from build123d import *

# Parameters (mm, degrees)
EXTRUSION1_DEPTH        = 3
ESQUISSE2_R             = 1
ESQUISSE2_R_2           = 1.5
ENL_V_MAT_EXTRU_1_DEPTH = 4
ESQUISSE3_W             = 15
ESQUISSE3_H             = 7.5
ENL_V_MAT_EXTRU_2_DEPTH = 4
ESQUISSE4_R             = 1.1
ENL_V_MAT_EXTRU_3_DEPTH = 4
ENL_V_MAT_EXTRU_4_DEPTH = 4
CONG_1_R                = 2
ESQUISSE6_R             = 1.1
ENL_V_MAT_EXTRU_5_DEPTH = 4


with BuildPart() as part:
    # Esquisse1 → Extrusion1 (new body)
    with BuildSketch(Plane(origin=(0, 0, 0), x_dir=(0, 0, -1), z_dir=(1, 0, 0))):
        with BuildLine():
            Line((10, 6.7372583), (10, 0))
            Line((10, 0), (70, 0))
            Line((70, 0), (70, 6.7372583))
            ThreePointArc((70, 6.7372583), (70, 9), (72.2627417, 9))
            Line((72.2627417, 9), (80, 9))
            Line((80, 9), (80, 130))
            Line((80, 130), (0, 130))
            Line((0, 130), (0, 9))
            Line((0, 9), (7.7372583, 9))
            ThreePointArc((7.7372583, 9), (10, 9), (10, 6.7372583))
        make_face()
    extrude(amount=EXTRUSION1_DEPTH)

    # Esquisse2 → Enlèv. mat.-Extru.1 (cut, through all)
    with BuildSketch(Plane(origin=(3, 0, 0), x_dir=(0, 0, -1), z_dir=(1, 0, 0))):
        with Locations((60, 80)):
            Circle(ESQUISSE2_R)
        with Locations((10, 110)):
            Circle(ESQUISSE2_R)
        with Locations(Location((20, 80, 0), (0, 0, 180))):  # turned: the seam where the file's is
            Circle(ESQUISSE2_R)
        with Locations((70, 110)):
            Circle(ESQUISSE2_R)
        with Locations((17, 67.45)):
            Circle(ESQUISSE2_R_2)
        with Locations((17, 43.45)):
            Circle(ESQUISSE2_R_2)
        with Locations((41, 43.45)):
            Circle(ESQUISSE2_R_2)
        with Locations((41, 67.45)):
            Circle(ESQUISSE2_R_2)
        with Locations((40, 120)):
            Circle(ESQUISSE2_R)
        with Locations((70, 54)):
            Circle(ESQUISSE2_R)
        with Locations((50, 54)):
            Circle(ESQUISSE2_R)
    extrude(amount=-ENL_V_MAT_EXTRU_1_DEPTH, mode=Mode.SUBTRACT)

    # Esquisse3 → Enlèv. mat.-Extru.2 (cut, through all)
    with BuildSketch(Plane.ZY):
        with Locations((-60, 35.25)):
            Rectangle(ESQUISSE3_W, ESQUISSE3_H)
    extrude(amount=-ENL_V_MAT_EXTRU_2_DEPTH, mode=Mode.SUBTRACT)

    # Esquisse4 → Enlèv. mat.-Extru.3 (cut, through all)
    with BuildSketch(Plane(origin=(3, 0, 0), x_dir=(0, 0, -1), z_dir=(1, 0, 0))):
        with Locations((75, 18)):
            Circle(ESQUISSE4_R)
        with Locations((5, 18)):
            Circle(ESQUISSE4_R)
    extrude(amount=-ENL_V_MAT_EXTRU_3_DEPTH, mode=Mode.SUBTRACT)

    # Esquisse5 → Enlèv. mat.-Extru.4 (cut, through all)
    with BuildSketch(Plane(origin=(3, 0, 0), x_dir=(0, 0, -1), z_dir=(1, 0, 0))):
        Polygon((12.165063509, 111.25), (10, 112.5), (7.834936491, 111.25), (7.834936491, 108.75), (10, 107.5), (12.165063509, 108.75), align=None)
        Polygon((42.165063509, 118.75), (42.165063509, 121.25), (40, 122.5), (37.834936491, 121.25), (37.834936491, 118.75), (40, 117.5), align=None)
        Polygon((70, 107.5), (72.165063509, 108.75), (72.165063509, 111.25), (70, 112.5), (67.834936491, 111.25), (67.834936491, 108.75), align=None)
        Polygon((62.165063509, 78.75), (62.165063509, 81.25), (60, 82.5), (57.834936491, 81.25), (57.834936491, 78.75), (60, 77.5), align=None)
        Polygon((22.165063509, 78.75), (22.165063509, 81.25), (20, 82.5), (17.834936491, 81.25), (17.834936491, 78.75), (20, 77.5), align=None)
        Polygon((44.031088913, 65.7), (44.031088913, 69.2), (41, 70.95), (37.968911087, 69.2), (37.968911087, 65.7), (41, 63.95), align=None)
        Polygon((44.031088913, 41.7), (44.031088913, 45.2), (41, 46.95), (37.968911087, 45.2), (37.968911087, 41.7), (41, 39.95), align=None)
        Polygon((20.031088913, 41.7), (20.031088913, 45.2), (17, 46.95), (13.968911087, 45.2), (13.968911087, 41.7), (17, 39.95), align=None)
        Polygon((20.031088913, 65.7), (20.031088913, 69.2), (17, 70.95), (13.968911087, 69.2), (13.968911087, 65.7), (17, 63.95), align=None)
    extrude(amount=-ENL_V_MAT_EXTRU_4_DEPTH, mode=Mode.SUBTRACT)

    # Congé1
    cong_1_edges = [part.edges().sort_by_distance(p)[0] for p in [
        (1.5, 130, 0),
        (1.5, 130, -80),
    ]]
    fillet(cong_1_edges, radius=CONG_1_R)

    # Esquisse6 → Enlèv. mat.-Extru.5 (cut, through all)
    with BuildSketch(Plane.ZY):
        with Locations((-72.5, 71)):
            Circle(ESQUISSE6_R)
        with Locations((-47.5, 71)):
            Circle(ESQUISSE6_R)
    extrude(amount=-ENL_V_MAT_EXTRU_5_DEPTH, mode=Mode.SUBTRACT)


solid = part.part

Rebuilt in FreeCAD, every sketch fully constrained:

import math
import FreeCAD as App
import Part
import Sketcher
from FreeCAD import Vector
Q = App.Units.Quantity


def edges_at(feature, points):
    """Names of the edges that pass closest to the given points."""
    edges = feature.Shape.Edges
    near = lambda p: min(range(len(edges)), key=lambda i: edges[i].distToShape(Part.Vertex(*p))[0])
    return sorted({f"Edge{near(p) + 1}" for p in points})


def add_polygon(sketch, points):
    """Adds a closed chain of lines whose ends are joined by coincident constraints."""
    first, n = sketch.GeometryCount, len(points)
    for a, b in zip(points, points[1:] + points[:1]):
        sketch.addGeometry(Part.LineSegment(App.Vector(*a, 0), App.Vector(*b, 0)), False)
    for i in range(n):
        sketch.addConstraint(Sketcher.Constraint("Coincident", first + i, 2, first + (i + 1) % n, 1))

doc = App.newDocument("Part")
body = doc.addObject("PartDesign::Body", "Body")

sketch1 = body.newObject("Sketcher::SketchObject", "Sketch")
sketch1.AttachmentSupport = (doc.getObject("YZ_Plane"), [""])
sketch1.MapMode = "FlatFace"
sketch1.addGeometry([
    Part.LineSegment(Vector(6.7, -10, 0), Vector(0, -10, 0)),
    Part.LineSegment(Vector(0, -10, 0), Vector(0, -70, 0)),
    Part.LineSegment(Vector(0, -70, 0), Vector(6.7, -70, 0)),
    Part.ArcOfCircle(Part.Circle(Vector(7.9, -71.1, 0), Vector(0, 0, 1), 1.6), math.radians(-45), math.radians(135)),
    Part.LineSegment(Vector(9, -72.3, 0), Vector(9, -80, 0)),
    Part.LineSegment(Vector(9, -80, 0), Vector(130, -80, 0)),
    Part.LineSegment(Vector(130, -80, 0), Vector(130, 0, 0)),
    Part.LineSegment(Vector(130, 0, 0), Vector(9, 0, 0)),
    Part.LineSegment(Vector(9, 0, 0), Vector(9, -7.7, 0)),
    Part.ArcOfCircle(Part.Circle(Vector(7.9, -8.9, 0), Vector(0, 0, 1), 1.6), math.radians(-135), math.radians(45)),
], False)
sketch1.addConstraint([
    Sketcher.Constraint("Coincident", 0, 2, 1, 1),
    Sketcher.Constraint("Coincident", 1, 2, 2, 1),
    Sketcher.Constraint("Coincident", 2, 2, 3, 2),
    Sketcher.Constraint("Coincident", 3, 1, 4, 1),
    Sketcher.Constraint("Coincident", 4, 2, 5, 1),
    Sketcher.Constraint("Coincident", 5, 2, 6, 1),
    Sketcher.Constraint("Coincident", 6, 2, 7, 1),
    Sketcher.Constraint("Coincident", 7, 2, 8, 1),
    Sketcher.Constraint("Coincident", 8, 2, 9, 2),
    Sketcher.Constraint("Coincident", 9, 1, 0, 1),
    Sketcher.Constraint("Horizontal", 0),
    Sketcher.Constraint("Vertical", 1),
    Sketcher.Constraint("Horizontal", 2),
    Sketcher.Constraint("Vertical", 4),
    Sketcher.Constraint("Horizontal", 5),
    Sketcher.Constraint("Vertical", 6),
    Sketcher.Constraint("Horizontal", 7),
    Sketcher.Constraint("Vertical", 8),
    Sketcher.Constraint("Equal", 3, 9),
    Sketcher.Constraint("PointOnObject", 0, 2, -2),
    Sketcher.Constraint("PointOnObject", 6, 2, -1),
    Sketcher.Constraint("Vertical", 3, 3, 9, 3),
    Sketcher.Constraint("Vertical", 4, 2, 7, 2),
    Sketcher.Constraint("Vertical", 2, 2, 9, 1),
    Sketcher.Constraint("Equal", 4, 8),
    Sketcher.Constraint("Radius", 3, 1.6),
    Sketcher.Constraint("DistanceX", 5, 1, 5, 2, 121.0),
    Sketcher.Constraint("DistanceY", 1, 2, 1, 1, 60.0),
    Sketcher.Constraint("DistanceY", 6, 1, 6, 2, 80.0),
    Sketcher.Constraint("DistanceX", -1, 1, 3, 1, 9.0),
    Sketcher.Constraint("DistanceX", 0, 2, 0, 1, 6.737258),
    Sketcher.Constraint("DistanceX", -1, 1, 3, 3, 7.868629),
])
pad1 = body.newObject("PartDesign::Pad", "Pad")
pad1.Profile = sketch1
pad1.Length = 3

sketch2 = body.newObject("Sketcher::SketchObject", "Sketch001")
sketch2.AttachmentSupport = (doc.getObject("YZ_Plane"), [""])
sketch2.MapMode = "FlatFace"
sketch2.AttachmentOffset = App.Placement(Vector(0, 0, 3), App.Rotation())
sketch2.addGeometry([
    Part.Circle(Vector(80, -60, 0), Vector(0, 0, 1), 1),
    Part.Circle(Vector(110, -10, 0), Vector(0, 0, 1), 1),
    Part.Circle(Vector(80, -20, 0), Vector(0, 0, 1), 1),
    Part.Circle(Vector(110, -70, 0), Vector(0, 0, 1), 1),
    Part.Circle(Vector(67.5, -17, 0), Vector(0, 0, 1), 1.5),
    Part.Circle(Vector(43.5, -17, 0), Vector(0, 0, 1), 1.5),
    Part.Circle(Vector(43.5, -41, 0), Vector(0, 0, 1), 1.5),
    Part.Circle(Vector(67.5, -41, 0), Vector(0, 0, 1), 1.5),
    Part.Circle(Vector(120, -40, 0), Vector(0, 0, 1), 1),
    Part.Circle(Vector(54, -70, 0), Vector(0, 0, 1), 1),
    Part.Circle(Vector(54, -50, 0), Vector(0, 0, 1), 1),
], False)
sketch2.addConstraint([
    Sketcher.Constraint("Equal", 0, 1),
    Sketcher.Constraint("Equal", 1, 2),
    Sketcher.Constraint("Equal", 2, 3),
    Sketcher.Constraint("Equal", 4, 5),
    Sketcher.Constraint("Equal", 5, 6),
    Sketcher.Constraint("Equal", 6, 7),
    Sketcher.Constraint("Equal", 3, 8),
    Sketcher.Constraint("Equal", 8, 9),
    Sketcher.Constraint("Equal", 9, 10),
    Sketcher.Constraint("Horizontal", 4, 3, 5, 3),
    Sketcher.Constraint("Horizontal", 6, 3, 7, 3),
    Sketcher.Constraint("Horizontal", 3, 3, 9, 3),
    Sketcher.Constraint("Vertical", 0, 3, 2, 3),
    Sketcher.Constraint("Vertical", 1, 3, 3, 3),
    Sketcher.Constraint("Vertical", 5, 3, 6, 3),
    Sketcher.Constraint("Vertical", 4, 3, 7, 3),
    Sketcher.Constraint("Vertical", 9, 3, 10, 3),
    Sketcher.Constraint("Diameter", 0, 2.0),
    Sketcher.Constraint("Diameter", 4, 3.0),
    Sketcher.Constraint("DistanceX", -1, 1, 0, 3, 80.0),
    Sketcher.Constraint("DistanceY", 0, 3, -1, 1, 60.0),
    Sketcher.Constraint("DistanceX", -1, 1, 1, 3, 110.0),
    Sketcher.Constraint("DistanceY", 1, 3, -1, 1, 10.0),
    Sketcher.Constraint("DistanceY", 2, 3, -1, 1, 20.0),
    Sketcher.Constraint("DistanceY", 3, 3, -1, 1, 70.0),
    Sketcher.Constraint("DistanceY", 4, 3, -1, 1, 17.0),
    Sketcher.Constraint("DistanceY", 6, 3, -1, 1, 41.0),
    Sketcher.Constraint("DistanceX", -1, 1, 8, 3, 120.0),
    Sketcher.Constraint("DistanceY", 8, 3, -1, 1, 40.0),
    Sketcher.Constraint("DistanceX", -1, 1, 9, 3, 54.0),
    Sketcher.Constraint("DistanceY", 10, 3, -1, 1, 50.0),
    Sketcher.Constraint("DistanceX", 5, 3, 4, 3, 24.0),
    Sketcher.Constraint("DistanceX", -1, 1, 4, 3, 67.45),
])
pocket1 = body.newObject("PartDesign::Pocket", "Pocket")
pocket1.Profile = sketch2
pocket1.Type = "ThroughAll"

sketch3 = body.newObject("Sketcher::SketchObject", "Sketch002")
sketch3.AttachmentSupport = (doc.getObject("YZ_Plane"), [""])
sketch3.MapMode = "FlatFace"
add_polygon(sketch3, [(39, -68), (32, -68), (32, -52), (39, -52)])
sketch3.addConstraint([
    Sketcher.Constraint("Horizontal", 0),
    Sketcher.Constraint("Vertical", 1),
    Sketcher.Constraint("Horizontal", 2),
    Sketcher.Constraint("Vertical", 3),
    Sketcher.Constraint("DistanceY", 1, 1, 1, 2, 15.0),
    Sketcher.Constraint("DistanceX", 0, 2, 0, 1, 7.5),
    Sketcher.Constraint("DistanceX", -1, 1, 2, 2, 39.0),
    Sketcher.Constraint("DistanceY", 0, 2, -1, 1, 67.5),
])
pocket2 = body.newObject("PartDesign::Pocket", "Pocket001")
pocket2.Profile = sketch3
pocket2.Type = "ThroughAll"
pocket2.Reversed = True

sketch4 = body.newObject("Sketcher::SketchObject", "Sketch003")
sketch4.AttachmentSupport = (doc.getObject("YZ_Plane"), [""])
sketch4.MapMode = "FlatFace"
sketch4.AttachmentOffset = App.Placement(Vector(0, 0, 3), App.Rotation())
sketch4.addGeometry([
    Part.Circle(Vector(18, -75, 0), Vector(0, 0, 1), 1.1),
    Part.Circle(Vector(18, -5, 0), Vector(0, 0, 1), 1.1),
], False)
sketch4.addConstraint([
    Sketcher.Constraint("Equal", 0, 1),
    Sketcher.Constraint("Vertical", 0, 3, 1, 3),
    Sketcher.Constraint("Diameter", 0, 2.2),
    Sketcher.Constraint("DistanceX", -1, 1, 0, 3, 18.0),
    Sketcher.Constraint("DistanceY", 0, 3, -1, 1, 75.0),
    Sketcher.Constraint("DistanceY", 1, 3, -1, 1, 5.0),
])
pocket3 = body.newObject("PartDesign::Pocket", "Pocket002")
pocket3.Profile = sketch4
pocket3.Type = "ThroughAll"

sketch5 = body.newObject("Sketcher::SketchObject", "Sketch004")
sketch5.AttachmentSupport = (doc.getObject("YZ_Plane"), [""])
sketch5.MapMode = "FlatFace"
sketch5.AttachmentOffset = App.Placement(Vector(0, 0, 3), App.Rotation())
add_polygon(sketch5, [(111.2, -12.2), (112.5, -10), (111.2, -7.8), (108.8, -7.8), (107.5, -10), (108.8, -12.2)])
add_polygon(sketch5, [(118.8, -42.2), (121.2, -42.2), (122.5, -40), (121.2, -37.8), (118.8, -37.8), (117.5, -40)])
add_polygon(sketch5, [(107.5, -70), (108.8, -72.2), (111.2, -72.2), (112.5, -70), (111.2, -67.8), (108.8, -67.8)])
add_polygon(sketch5, [(78.8, -62.2), (81.2, -62.2), (82.5, -60), (81.2, -57.8), (78.8, -57.8), (77.5, -60)])
add_polygon(sketch5, [(78.8, -22.2), (81.2, -22.2), (82.5, -20), (81.2, -17.8), (78.8, -17.8), (77.5, -20)])
add_polygon(sketch5, [(65.7, -44), (69.2, -44), (71, -41), (69.2, -38), (65.7, -38), (64, -41)])
add_polygon(sketch5, [(41.7, -44), (45.2, -44), (47, -41), (45.2, -38), (41.7, -38), (40, -41)])
add_polygon(sketch5, [(41.7, -20), (45.2, -20), (47, -17), (45.2, -14), (41.7, -14), (40, -17)])
add_polygon(sketch5, [(65.7, -20), (69.2, -20), (71, -17), (69.2, -14), (65.7, -14), (64, -17)])
sketch5.addConstraint([
    Sketcher.Constraint("Horizontal", 2),
    Sketcher.Constraint("Horizontal", 5),
    Sketcher.Constraint("Horizontal", 6),
    Sketcher.Constraint("Horizontal", 9),
    Sketcher.Constraint("Horizontal", 13),
    Sketcher.Constraint("Horizontal", 16),
    Sketcher.Constraint("Horizontal", 18),
    Sketcher.Constraint("Horizontal", 21),
    Sketcher.Constraint("Horizontal", 24),
    Sketcher.Constraint("Horizontal", 27),
    Sketcher.Constraint("Horizontal", 30),
    Sketcher.Constraint("Horizontal", 33),
    Sketcher.Constraint("Horizontal", 36),
    Sketcher.Constraint("Horizontal", 39),
    Sketcher.Constraint("Horizontal", 42),
    Sketcher.Constraint("Horizontal", 45),
    Sketcher.Constraint("Horizontal", 48),
    Sketcher.Constraint("Horizontal", 51),
    Sketcher.Constraint("Parallel", 0, 3),
    Sketcher.Constraint("Parallel", 1, 4),
    Sketcher.Constraint("Parallel", 3, 7),
    Sketcher.Constraint("Parallel", 4, 8),
    Sketcher.Constraint("Parallel", 7, 10),
    Sketcher.Constraint("Parallel", 8, 11),
    Sketcher.Constraint("Parallel", 11, 12),
    Sketcher.Constraint("Parallel", 10, 14),
    Sketcher.Constraint("Parallel", 12, 15),
    Sketcher.Constraint("Parallel", 14, 17),
    Sketcher.Constraint("Parallel", 17, 19),
    Sketcher.Constraint("Parallel", 15, 20),
    Sketcher.Constraint("Parallel", 19, 22),
    Sketcher.Constraint("Parallel", 20, 23),
    Sketcher.Constraint("Parallel", 22, 25),
    Sketcher.Constraint("Parallel", 23, 26),
    Sketcher.Constraint("Parallel", 25, 28),
    Sketcher.Constraint("Parallel", 26, 29),
    Sketcher.Constraint("Parallel", 28, 31),
    Sketcher.Constraint("Parallel", 29, 32),
    Sketcher.Constraint("Parallel", 31, 34),
    Sketcher.Constraint("Parallel", 32, 35),
    Sketcher.Constraint("Parallel", 34, 37),
    Sketcher.Constraint("Parallel", 35, 38),
    Sketcher.Constraint("Parallel", 37, 40),
    Sketcher.Constraint("Parallel", 38, 41),
    Sketcher.Constraint("Parallel", 40, 43),
    Sketcher.Constraint("Parallel", 41, 44),
    Sketcher.Constraint("Parallel", 43, 46),
    Sketcher.Constraint("Parallel", 44, 47),
    Sketcher.Constraint("Parallel", 46, 49),
    Sketcher.Constraint("Parallel", 47, 50),
    Sketcher.Constraint("Parallel", 49, 52),
    Sketcher.Constraint("Parallel", 50, 53),
    Sketcher.Constraint("Horizontal", 0, 2, 3, 2),
    Sketcher.Constraint("Horizontal", 7, 2, 10, 2),
    Sketcher.Constraint("Horizontal", 14, 2, 17, 2),
    Sketcher.Constraint("Horizontal", 19, 2, 22, 2),
    Sketcher.Constraint("Horizontal", 25, 2, 28, 2),
    Sketcher.Constraint("Horizontal", 31, 2, 34, 2),
    Sketcher.Constraint("Horizontal", 35, 2, 36, 2),
    Sketcher.Constraint("Horizontal", 34, 2, 37, 2),
    Sketcher.Constraint("Horizontal", 33, 2, 38, 2),
    Sketcher.Constraint("Horizontal", 37, 2, 40, 2),
    Sketcher.Constraint("Horizontal", 43, 2, 46, 2),
    Sketcher.Constraint("Horizontal", 47, 2, 48, 2),
    Sketcher.Constraint("Horizontal", 46, 2, 49, 2),
    Sketcher.Constraint("Horizontal", 45, 2, 50, 2),
    Sketcher.Constraint("Horizontal", 49, 2, 52, 2),
    Sketcher.Constraint("Vertical", 2, 2, 4, 2),
    Sketcher.Constraint("Vertical", 1, 2, 5, 2),
    Sketcher.Constraint("Vertical", 6, 2, 8, 2),
    Sketcher.Constraint("Vertical", 4, 2, 12, 2),
    Sketcher.Constraint("Vertical", 5, 2, 13, 2),
    Sketcher.Constraint("Vertical", 0, 2, 14, 2),
    Sketcher.Constraint("Vertical", 13, 2, 15, 2),
    Sketcher.Constraint("Vertical", 18, 2, 20, 2),
    Sketcher.Constraint("Vertical", 20, 2, 24, 2),
    Sketcher.Constraint("Vertical", 19, 2, 25, 2),
    Sketcher.Constraint("Vertical", 24, 2, 26, 2),
    Sketcher.Constraint("Vertical", 23, 2, 27, 2),
    Sketcher.Constraint("Vertical", 30, 2, 32, 2),
    Sketcher.Constraint("Vertical", 38, 2, 42, 2),
    Sketcher.Constraint("Vertical", 37, 2, 43, 2),
    Sketcher.Constraint("Vertical", 42, 2, 44, 2),
    Sketcher.Constraint("Vertical", 41, 2, 45, 2),
    Sketcher.Constraint("Vertical", 32, 2, 48, 2),
    Sketcher.Constraint("Vertical", 35, 2, 51, 2),
    Sketcher.Constraint("Equal", 5, 6),
    Sketcher.Constraint("Equal", 16, 18),
    Sketcher.Constraint("Equal", 33, 36),
    Sketcher.Constraint("Equal", 4, 7),
    Sketcher.Constraint("Equal", 17, 19),
    Sketcher.Constraint("Angle", 0, Q("60 deg")),
    Sketcher.Constraint("DistanceX", 2, 2, 2, 1, 2.5),
    Sketcher.Constraint("DistanceX", 30, 1, 30, 2, 3.5),
    Sketcher.Constraint("DistanceY", 0, 2, -1, 1, 10.0),
    Sketcher.Constraint("DistanceY", 7, 2, -1, 1, 40.0),
    Sketcher.Constraint("DistanceY", 14, 2, -1, 1, 70.0),
    Sketcher.Constraint("DistanceY", 19, 2, -1, 1, 60.0),
    Sketcher.Constraint("DistanceY", 25, 2, -1, 1, 20.0),
    Sketcher.Constraint("DistanceY", 31, 2, -1, 1, 41.0),
    Sketcher.Constraint("DistanceY", 43, 2, -1, 1, 17.0),
    Sketcher.Constraint("DistanceX", 3, 2, 0, 2, 5.0),
    Sketcher.Constraint("DistanceX", 5, 2, 6, 2, 10.0),
    Sketcher.Constraint("DistanceX", 18, 2, 15, 2, 30.0),
    Sketcher.Constraint("DistanceX", 34, 2, 31, 2, 7.0),
    Sketcher.Constraint("DistanceX", 36, 2, 30, 2, 24.0),
    Sketcher.Constraint("DistanceX", -1, 1, 0, 2, 112.5),
    Sketcher.Constraint("DistanceX", -1, 1, 30, 2, 69.2),
])
pocket4 = body.newObject("PartDesign::Pocket", "Pocket003")
pocket4.Profile = sketch5
pocket4.Type = "ThroughAll"
doc.recompute()

fillet = body.newObject("PartDesign::Fillet", "Fillet")
fillet.Base = (pocket4, edges_at(pocket4, [(1.5, 130, 0), (1.5, 130, -80)]))
fillet.Radius = 2

sketch6 = body.newObject("Sketcher::SketchObject", "Sketch005")
sketch6.AttachmentSupport = (doc.getObject("YZ_Plane"), [""])
sketch6.MapMode = "FlatFace"
sketch6.addGeometry([
    Part.Circle(Vector(71, -72.5, 0), Vector(0, 0, 1), 1.1),
    Part.Circle(Vector(71, -47.5, 0), Vector(0, 0, 1), 1.1),
], False)
sketch6.addConstraint([
    Sketcher.Constraint("Equal", 0, 1),
    Sketcher.Constraint("Vertical", 0, 3, 1, 3),
    Sketcher.Constraint("Diameter", 0, 2.2),
    Sketcher.Constraint("DistanceX", -1, 1, 0, 3, 71.0),
    Sketcher.Constraint("DistanceY", 0, 3, 1, 3, 25.0),
    Sketcher.Constraint("DistanceY", 0, 3, -1, 1, 72.5),
])
pocket5 = body.newObject("PartDesign::Pocket", "Pocket004")
pocket5.Profile = sketch6
pocket5.Type = "ThroughAll"
pocket5.Reversed = True

doc.recompute()
